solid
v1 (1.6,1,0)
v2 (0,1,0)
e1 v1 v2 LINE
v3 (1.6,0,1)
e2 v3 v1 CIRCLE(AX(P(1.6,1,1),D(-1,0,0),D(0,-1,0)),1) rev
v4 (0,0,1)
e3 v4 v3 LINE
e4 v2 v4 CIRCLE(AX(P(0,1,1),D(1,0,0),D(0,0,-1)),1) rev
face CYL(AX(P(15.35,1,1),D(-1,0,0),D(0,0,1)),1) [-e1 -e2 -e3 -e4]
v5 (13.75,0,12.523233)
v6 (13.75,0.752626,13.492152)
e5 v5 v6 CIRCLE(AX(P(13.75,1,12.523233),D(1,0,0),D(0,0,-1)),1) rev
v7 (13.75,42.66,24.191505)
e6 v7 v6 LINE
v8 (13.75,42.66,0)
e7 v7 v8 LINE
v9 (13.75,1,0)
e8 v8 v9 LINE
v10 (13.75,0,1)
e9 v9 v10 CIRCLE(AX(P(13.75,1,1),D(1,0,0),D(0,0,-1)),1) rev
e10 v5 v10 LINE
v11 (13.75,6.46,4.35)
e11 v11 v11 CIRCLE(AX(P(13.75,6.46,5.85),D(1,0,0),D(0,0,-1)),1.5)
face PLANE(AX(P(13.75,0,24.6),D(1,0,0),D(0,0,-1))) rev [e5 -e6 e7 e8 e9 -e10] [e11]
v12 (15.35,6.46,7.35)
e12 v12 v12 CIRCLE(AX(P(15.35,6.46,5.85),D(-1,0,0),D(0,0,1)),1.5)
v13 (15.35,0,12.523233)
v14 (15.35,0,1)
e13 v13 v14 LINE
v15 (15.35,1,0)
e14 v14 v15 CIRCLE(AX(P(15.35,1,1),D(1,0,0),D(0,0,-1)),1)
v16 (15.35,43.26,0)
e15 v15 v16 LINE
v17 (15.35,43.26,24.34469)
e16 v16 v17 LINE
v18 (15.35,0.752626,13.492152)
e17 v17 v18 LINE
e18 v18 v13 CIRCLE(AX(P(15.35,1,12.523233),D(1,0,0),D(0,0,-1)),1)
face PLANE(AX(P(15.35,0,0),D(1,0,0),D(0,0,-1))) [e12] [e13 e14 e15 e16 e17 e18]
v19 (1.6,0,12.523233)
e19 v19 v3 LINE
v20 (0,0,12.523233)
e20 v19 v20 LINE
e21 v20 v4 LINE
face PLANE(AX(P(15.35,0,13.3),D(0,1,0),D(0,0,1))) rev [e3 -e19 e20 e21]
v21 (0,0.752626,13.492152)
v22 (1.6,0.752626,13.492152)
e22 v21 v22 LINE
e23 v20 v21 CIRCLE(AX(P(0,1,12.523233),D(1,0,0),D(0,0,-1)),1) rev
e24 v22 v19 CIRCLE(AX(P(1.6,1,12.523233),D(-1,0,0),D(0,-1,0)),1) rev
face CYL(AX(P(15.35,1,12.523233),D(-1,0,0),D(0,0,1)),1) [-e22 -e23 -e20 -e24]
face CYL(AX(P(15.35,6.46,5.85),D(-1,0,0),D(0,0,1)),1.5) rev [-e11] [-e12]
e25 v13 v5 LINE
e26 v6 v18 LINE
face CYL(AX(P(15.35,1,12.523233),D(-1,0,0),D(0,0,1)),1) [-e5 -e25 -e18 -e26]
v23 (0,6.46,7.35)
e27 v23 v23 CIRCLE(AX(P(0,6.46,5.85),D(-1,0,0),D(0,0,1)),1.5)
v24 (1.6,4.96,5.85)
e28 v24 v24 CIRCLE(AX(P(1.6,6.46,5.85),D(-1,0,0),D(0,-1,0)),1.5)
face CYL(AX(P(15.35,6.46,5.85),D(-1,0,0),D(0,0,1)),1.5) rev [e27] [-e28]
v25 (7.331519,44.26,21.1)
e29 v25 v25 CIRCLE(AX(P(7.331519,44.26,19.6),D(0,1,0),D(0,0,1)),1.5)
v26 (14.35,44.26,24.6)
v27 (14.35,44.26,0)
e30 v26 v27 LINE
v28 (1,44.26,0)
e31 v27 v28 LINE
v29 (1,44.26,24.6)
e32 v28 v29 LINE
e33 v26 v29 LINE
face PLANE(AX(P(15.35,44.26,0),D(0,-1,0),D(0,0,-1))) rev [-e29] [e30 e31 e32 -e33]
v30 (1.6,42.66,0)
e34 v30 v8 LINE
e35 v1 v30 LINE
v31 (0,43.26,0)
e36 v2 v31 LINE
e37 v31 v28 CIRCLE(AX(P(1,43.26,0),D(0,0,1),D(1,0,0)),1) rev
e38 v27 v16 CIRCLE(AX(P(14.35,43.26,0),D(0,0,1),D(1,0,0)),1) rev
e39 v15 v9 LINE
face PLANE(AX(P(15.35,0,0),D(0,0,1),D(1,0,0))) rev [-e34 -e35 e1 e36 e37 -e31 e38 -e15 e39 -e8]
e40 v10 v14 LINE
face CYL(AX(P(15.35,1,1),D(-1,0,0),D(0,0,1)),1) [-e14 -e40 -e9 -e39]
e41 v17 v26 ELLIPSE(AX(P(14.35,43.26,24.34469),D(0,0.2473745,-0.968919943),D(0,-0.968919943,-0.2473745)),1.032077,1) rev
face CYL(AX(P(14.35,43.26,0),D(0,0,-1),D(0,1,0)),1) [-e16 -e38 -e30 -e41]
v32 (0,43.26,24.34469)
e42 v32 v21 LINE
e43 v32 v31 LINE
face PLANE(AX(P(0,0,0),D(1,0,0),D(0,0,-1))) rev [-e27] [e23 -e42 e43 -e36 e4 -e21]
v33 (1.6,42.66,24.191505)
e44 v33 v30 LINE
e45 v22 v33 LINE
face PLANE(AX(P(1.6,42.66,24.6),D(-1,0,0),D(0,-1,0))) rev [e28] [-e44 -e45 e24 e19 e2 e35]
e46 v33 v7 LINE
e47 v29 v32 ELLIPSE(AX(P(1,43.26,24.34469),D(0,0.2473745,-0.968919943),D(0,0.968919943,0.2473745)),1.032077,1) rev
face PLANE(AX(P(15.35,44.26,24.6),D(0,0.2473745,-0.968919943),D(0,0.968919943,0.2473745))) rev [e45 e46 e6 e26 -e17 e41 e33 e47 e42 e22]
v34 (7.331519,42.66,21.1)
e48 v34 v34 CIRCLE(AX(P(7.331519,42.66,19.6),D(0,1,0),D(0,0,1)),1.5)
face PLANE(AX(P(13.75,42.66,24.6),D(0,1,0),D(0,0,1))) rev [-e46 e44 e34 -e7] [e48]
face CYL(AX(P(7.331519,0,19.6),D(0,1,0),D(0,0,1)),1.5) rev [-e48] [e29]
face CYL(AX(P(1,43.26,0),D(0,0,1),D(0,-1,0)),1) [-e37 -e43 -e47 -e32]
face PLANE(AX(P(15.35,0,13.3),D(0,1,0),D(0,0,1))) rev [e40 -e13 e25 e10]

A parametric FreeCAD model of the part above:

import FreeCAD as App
import Part
import Sketcher

V = App.Vector


def edges_at(feature, points):
    """Names of the edges that pass closest to the given points."""
    edges = feature.Shape.Edges
    near = lambda p: min(range(len(edges)), key=lambda i: edges[i].distToShape(Part.Vertex(*p))[0])
    return sorted({f"Edge{near(p) + 1}" for p in points})


def add_polygon(sketch, points):
    """Adds a closed chain of lines whose ends are joined by coincident constraints."""
    first, n = sketch.GeometryCount, len(points)
    for a, b in zip(points, points[1:] + points[:1]):
        sketch.addGeometry(Part.LineSegment(App.Vector(*a, 0), App.Vector(*b, 0)), False)
    for i in range(n):
        sketch.addConstraint(Sketcher.Constraint("Coincident", first + i, 2, first + (i + 1) % n, 1))

doc = App.newDocument("Part")
body = doc.addObject("PartDesign::Body", "Body")

sketch1 = body.newObject("Sketcher::SketchObject", "Sketch")
sketch1.AttachmentSupport = (doc.getObject("YZ_Plane"), [""])
sketch1.MapMode = "FlatFace"
add_polygon(sketch1, [(0, 0), (44, 0), (44, 25), (0, 13)])
sketch1.addConstraint(Sketcher.Constraint("Horizontal", 0))
sketch1.addConstraint(Sketcher.Constraint("Vertical", 1))
sketch1.addConstraint(Sketcher.Constraint("Vertical", 3))
sketch1.addConstraint(Sketcher.Constraint("Coincident", 3, 2, -1, 1))
sketch1.addConstraint(Sketcher.Constraint("DistanceY", 1, 1, 1, 2, 24.6))
sketch1.addConstraint(Sketcher.Constraint("DistanceY", 3, 2, 3, 1, 13.3))
sketch1.addConstraint(Sketcher.Constraint("DistanceX", 0, 1, 0, 2, 44.26))
pad1 = body.newObject("PartDesign::Pad", "Pad")
pad1.Profile = sketch1
pad1.Length = 15.35

sketch2 = body.newObject("Sketcher::SketchObject", "Sketch001")
sketch2.AttachmentSupport = (doc.getObject("XY_Plane"), [""])
sketch2.MapMode = "FlatFace"
add_polygon(sketch2, [(14, 43), (14, 0), (2, 0), (2, 43)])
sketch2.addConstraint(Sketcher.Constraint("Vertical", 0))
sketch2.addConstraint(Sketcher.Constraint("Horizontal", 1))
sketch2.addConstraint(Sketcher.Constraint("Vertical", 2))
sketch2.addConstraint(Sketcher.Constraint("Horizontal", 3))
sketch2.addConstraint(Sketcher.Constraint("PointOnObject", 0, 2, -1))
sketch2.addConstraint(Sketcher.Constraint("DistanceX", 1, 2, 1, 1, 12.15))
sketch2.addConstraint(Sketcher.Constraint("DistanceY", 0, 2, 0, 1, 42.66))
sketch2.addConstraint(Sketcher.Constraint("DistanceX", -1, 1, 1, 2, 1.6))
pocket1 = body.newObject("PartDesign::Pocket", "Pocket")
pocket1.Profile = sketch2
pocket1.Type = "ThroughAll"
pocket1.Reversed = True
doc.recompute()

fillet = body.newObject("PartDesign::Fillet", "Fillet")
fillet.Base = (pocket1, edges_at(pocket1, [
    (15.35, 44.26, 12.3),
    (0.8, 0, 13.3),
    (0.8, 0, 0),
    (0, 44.26, 12.3),
    (14.55, 0, 13.3),
    (14.55, 0, 0),
]))
fillet.Radius = 1

sketch3 = body.newObject("Sketcher::SketchObject", "Sketch002")
sketch3.AttachmentSupport = (doc.getObject("YZ_Plane"), [""])
sketch3.MapMode = "FlatFace"
sketch3.addGeometry(Part.Circle(V(6.5, 5.8, 0), V(0, 0, 1), 1.5), False)
sketch3.addConstraint(Sketcher.Constraint("Diameter", 0, 3.0))
sketch3.addConstraint(Sketcher.Constraint("DistanceX", -1, 1, 0, 3, 6.46))
sketch3.addConstraint(Sketcher.Constraint("DistanceY", -1, 1, 0, 3, 5.85))
pocket2 = body.newObject("PartDesign::Pocket", "Pocket001")
pocket2.Profile = sketch3
pocket2.Type = "ThroughAll"
pocket2.Reversed = True

sketch4 = body.newObject("Sketcher::SketchObject", "Sketch003")
sketch4.AttachmentSupport = (doc.getObject("XZ_Plane"), [""])
sketch4.MapMode = "FlatFace"
sketch4.AttachmentOffset = App.Placement(V(0, 0, -44.26), App.Rotation())
sketch4.addGeometry(Part.Circle(V(7.3, 19.6, 0), V(0, 0, 1), 1.5), False)
sketch4.addConstraint(Sketcher.Constraint("Diameter", 0, 3.0))
sketch4.addConstraint(Sketcher.Constraint("DistanceY", -1, 1, 0, 3, 19.6))
sketch4.addConstraint(Sketcher.Constraint("DistanceX", -1, 1, 0, 3, 7.331519))
pocket3 = body.newObject("PartDesign::Pocket", "Pocket002")
pocket3.Profile = sketch4
pocket3.Type = "ThroughAll"
pocket3.Reversed = True

doc.recompute()
